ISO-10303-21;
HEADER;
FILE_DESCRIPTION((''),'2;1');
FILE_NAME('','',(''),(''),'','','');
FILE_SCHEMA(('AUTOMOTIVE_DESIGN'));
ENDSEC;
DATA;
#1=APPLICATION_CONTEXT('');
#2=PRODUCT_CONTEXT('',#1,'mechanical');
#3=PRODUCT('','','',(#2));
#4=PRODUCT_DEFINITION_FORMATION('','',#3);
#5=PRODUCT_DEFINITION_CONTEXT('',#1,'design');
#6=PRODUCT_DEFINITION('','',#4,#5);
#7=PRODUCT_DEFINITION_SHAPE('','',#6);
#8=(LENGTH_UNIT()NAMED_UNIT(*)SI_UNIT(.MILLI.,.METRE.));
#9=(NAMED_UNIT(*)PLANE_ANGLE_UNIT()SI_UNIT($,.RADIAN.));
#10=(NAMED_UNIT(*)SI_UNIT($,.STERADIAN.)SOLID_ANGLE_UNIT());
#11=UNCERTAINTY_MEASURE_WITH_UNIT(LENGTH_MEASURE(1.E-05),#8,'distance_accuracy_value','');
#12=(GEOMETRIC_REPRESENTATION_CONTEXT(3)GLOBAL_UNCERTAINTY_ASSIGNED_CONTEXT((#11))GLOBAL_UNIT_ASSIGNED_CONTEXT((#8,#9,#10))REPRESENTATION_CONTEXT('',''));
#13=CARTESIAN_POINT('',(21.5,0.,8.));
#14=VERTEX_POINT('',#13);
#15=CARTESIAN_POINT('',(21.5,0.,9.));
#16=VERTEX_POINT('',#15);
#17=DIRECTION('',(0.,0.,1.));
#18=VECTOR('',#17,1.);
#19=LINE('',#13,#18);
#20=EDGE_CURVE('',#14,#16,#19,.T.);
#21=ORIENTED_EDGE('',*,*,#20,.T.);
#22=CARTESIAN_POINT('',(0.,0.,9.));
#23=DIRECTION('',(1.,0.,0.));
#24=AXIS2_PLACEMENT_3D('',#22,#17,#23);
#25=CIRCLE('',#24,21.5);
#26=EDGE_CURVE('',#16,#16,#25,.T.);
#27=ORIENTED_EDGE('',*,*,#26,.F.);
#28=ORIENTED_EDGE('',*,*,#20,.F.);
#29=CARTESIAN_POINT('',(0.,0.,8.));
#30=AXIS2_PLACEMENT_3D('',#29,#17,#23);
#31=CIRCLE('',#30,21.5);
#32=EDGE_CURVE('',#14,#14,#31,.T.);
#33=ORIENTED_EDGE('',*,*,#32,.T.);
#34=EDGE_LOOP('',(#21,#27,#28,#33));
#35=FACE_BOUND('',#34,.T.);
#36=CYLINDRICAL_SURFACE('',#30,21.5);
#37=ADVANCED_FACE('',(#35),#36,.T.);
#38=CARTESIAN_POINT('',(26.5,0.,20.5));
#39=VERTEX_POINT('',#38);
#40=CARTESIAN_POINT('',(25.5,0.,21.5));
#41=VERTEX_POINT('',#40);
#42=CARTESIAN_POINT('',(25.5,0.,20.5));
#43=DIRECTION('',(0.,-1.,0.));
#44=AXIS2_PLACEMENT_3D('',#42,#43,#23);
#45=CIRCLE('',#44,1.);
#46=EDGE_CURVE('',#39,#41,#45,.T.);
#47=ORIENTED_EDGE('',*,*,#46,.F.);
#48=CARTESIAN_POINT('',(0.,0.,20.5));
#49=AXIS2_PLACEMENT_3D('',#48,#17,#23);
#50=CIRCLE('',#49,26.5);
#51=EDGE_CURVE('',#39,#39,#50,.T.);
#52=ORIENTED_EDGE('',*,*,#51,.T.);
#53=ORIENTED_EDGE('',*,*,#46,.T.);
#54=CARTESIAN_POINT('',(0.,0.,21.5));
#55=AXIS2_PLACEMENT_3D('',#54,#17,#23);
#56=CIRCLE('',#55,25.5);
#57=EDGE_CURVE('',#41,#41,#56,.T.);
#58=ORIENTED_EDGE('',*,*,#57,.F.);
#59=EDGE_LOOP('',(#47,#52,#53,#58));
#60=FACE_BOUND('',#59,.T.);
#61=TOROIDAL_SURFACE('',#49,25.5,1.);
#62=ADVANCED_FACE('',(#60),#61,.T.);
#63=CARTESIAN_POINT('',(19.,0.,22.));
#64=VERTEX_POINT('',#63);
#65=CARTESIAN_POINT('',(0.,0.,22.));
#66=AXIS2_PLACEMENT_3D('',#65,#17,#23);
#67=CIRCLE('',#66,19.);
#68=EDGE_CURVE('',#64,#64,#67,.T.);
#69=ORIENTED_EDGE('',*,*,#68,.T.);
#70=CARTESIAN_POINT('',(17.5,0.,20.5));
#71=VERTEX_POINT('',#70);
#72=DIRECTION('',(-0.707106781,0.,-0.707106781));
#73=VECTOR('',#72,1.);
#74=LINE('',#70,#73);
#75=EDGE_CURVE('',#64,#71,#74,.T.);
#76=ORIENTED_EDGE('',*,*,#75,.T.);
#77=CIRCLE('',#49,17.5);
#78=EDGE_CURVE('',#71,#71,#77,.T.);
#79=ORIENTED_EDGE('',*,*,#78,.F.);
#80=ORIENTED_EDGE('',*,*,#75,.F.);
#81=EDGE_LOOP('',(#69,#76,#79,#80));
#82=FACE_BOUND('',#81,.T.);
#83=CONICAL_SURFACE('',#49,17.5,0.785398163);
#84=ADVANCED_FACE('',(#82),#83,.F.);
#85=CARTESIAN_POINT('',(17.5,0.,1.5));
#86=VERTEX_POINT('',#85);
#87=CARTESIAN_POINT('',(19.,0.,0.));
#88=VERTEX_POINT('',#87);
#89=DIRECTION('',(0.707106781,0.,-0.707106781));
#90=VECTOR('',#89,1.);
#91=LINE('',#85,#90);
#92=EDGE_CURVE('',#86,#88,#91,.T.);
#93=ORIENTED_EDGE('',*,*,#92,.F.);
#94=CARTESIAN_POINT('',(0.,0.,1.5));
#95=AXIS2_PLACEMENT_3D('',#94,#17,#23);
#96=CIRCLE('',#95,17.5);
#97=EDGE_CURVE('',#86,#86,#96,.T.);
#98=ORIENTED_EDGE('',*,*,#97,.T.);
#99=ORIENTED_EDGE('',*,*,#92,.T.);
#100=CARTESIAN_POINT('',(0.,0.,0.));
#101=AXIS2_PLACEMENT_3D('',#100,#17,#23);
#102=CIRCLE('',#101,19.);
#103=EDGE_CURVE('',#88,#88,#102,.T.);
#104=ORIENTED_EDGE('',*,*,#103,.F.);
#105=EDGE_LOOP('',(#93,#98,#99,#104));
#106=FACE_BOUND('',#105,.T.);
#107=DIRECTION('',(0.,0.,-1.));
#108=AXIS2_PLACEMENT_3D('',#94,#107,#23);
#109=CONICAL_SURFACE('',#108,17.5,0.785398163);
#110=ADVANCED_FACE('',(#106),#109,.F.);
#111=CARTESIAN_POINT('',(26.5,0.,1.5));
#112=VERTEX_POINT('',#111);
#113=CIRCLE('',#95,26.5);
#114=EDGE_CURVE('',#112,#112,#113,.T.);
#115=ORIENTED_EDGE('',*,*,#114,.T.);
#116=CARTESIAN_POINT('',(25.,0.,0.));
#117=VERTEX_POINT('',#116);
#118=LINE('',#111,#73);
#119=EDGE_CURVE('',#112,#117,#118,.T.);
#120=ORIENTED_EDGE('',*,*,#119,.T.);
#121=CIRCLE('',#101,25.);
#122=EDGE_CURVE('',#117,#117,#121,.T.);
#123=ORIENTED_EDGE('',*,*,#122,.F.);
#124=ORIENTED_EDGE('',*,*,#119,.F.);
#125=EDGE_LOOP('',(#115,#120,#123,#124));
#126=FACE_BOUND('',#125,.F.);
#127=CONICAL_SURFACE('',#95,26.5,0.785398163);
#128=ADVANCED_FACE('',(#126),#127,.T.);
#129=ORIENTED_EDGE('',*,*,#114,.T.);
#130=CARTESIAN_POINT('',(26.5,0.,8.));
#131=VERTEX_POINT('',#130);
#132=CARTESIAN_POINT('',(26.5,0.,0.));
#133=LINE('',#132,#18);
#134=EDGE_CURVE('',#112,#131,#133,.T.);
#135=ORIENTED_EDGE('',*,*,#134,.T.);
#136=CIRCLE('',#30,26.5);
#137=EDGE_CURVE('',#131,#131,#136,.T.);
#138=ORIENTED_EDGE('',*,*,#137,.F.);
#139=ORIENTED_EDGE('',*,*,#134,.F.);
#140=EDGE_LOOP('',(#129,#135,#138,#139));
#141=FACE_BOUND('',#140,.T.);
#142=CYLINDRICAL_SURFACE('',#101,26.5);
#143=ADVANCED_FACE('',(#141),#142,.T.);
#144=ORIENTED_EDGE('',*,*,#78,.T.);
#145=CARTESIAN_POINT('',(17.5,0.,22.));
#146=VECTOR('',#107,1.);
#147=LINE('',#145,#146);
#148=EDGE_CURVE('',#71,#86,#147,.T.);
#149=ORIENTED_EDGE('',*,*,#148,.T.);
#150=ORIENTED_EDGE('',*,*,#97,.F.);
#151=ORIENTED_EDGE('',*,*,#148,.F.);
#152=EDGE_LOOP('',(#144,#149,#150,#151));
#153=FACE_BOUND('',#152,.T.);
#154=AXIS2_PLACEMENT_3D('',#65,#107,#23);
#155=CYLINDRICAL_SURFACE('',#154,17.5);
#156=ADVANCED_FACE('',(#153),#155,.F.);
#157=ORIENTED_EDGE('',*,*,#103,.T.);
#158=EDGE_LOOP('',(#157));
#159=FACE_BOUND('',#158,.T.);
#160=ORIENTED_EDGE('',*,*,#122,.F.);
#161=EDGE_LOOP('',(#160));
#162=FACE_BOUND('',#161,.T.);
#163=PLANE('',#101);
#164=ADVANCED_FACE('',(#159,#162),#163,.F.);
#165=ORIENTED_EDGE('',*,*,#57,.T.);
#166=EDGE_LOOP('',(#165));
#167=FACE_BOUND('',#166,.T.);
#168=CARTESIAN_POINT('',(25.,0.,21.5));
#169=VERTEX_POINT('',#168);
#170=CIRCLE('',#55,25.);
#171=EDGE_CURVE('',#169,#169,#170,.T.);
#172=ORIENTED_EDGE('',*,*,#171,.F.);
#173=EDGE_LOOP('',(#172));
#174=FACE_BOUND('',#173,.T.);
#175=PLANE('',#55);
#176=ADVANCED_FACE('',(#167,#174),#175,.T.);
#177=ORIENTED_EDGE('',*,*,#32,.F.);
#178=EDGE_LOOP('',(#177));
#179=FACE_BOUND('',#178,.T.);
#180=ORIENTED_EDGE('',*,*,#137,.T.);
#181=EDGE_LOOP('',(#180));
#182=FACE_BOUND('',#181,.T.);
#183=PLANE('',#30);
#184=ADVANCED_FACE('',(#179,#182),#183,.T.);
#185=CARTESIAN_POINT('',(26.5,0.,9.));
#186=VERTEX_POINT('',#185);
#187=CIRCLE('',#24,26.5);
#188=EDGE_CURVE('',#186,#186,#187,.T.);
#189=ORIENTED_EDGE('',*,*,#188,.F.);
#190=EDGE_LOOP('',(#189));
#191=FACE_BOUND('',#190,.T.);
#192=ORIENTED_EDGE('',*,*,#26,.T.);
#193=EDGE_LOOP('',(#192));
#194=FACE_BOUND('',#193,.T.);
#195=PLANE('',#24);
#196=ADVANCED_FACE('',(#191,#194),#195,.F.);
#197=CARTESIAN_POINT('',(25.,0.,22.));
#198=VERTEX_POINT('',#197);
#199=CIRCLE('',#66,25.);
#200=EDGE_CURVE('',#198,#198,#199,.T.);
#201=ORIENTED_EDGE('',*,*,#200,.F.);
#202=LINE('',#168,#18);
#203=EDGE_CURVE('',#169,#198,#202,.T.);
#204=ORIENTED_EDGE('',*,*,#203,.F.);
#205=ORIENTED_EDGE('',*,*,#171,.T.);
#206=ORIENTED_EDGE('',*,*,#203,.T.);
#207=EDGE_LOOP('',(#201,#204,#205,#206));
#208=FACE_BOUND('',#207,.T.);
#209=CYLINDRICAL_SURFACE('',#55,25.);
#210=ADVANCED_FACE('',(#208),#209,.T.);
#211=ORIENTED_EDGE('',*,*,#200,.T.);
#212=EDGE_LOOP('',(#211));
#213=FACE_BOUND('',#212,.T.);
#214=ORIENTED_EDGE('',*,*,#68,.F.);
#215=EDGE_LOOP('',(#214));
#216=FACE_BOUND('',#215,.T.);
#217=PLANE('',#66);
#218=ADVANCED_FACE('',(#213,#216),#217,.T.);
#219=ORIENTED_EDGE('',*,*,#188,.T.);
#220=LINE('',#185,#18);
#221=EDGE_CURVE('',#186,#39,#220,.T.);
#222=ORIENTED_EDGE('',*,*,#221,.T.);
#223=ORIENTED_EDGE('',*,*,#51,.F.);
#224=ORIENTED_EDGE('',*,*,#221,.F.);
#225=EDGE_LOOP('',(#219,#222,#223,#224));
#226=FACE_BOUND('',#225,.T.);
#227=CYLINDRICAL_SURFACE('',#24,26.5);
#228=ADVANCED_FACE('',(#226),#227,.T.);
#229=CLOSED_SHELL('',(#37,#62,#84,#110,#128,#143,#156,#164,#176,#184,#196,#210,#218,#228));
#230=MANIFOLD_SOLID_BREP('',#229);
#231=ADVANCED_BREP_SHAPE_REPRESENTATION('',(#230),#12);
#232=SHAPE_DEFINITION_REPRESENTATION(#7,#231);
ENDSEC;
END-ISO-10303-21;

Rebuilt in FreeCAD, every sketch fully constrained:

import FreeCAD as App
import Part
import Sketcher

V = App.Vector


def edges_at(feature, points):
    """Names of the edges that pass closest to the given points."""
    edges = feature.Shape.Edges
    near = lambda p: min(range(len(edges)), key=lambda i: edges[i].distToShape(Part.Vertex(*p))[0])
    return sorted({f"Edge{near(p) + 1}" for p in points})


def add_polygon(sketch, points):
    """Adds a closed chain of lines whose ends are joined by coincident constraints."""
    first, n = sketch.GeometryCount, len(points)
    for a, b in zip(points, points[1:] + points[:1]):
        sketch.addGeometry(Part.LineSegment(App.Vector(*a, 0), App.Vector(*b, 0)), False)
    for i in range(n):
        sketch.addConstraint(Sketcher.Constraint("Coincident", first + i, 2, first + (i + 1) % n, 1))

doc = App.newDocument("Part")
body = doc.addObject("PartDesign::Body", "Body")

sketch1 = body.newObject("Sketcher::SketchObject", "Sketch")
sketch1.AttachmentSupport = (doc.getObject("XZ_Plane"), [""])
sketch1.MapMode = "FlatFace"
add_polygon(sketch1, [(17.5, 22), (17.5, 0), (26.5, 0), (26.5, 8), (21.5, 8), (21.5, 9), (26.5, 9), (26.5, 21.5), (25, 21.5), (25, 22)])
sketch1.addConstraint(Sketcher.Constraint("Vertical", 0))
sketch1.addConstraint(Sketcher.Constraint("Horizontal", 1))
sketch1.addConstraint(Sketcher.Constraint("Vertical", 2))
sketch1.addConstraint(Sketcher.Constraint("Horizontal", 3))
sketch1.addConstraint(Sketcher.Constraint("Vertical", 4))
sketch1.addConstraint(Sketcher.Constraint("Horizontal", 5))
sketch1.addConstraint(Sketcher.Constraint("Vertical", 6))
sketch1.addConstraint(Sketcher.Constraint("Horizontal", 7))
sketch1.addConstraint(Sketcher.Constraint("Vertical", 8))
sketch1.addConstraint(Sketcher.Constraint("Horizontal", 9))
sketch1.addConstraint(Sketcher.Constraint("PointOnObject", 0, 2, -1))
sketch1.addConstraint(Sketcher.Constraint("Vertical", 2, 2, 5, 2))
sketch1.addConstraint(Sketcher.Constraint("DistanceX", 1, 1, 1, 2, 9.0))
sketch1.addConstraint(Sketcher.Constraint("DistanceX", 3, 2, 3, 1, 5.0))
sketch1.addConstraint(Sketcher.Constraint("DistanceY", 0, 2, 0, 1, 22.0))
sketch1.addConstraint(Sketcher.Constraint("DistanceY", 2, 1, 2, 2, 8.0))
sketch1.addConstraint(Sketcher.Constraint("DistanceY", 4, 1, 4, 2, 1.0))
sketch1.addConstraint(Sketcher.Constraint("DistanceX", 7, 2, 7, 1, 1.5))
sketch1.addConstraint(Sketcher.Constraint("DistanceY", 6, 1, 6, 2, 12.5))
sketch1.addConstraint(Sketcher.Constraint("DistanceX", -1, 1, 7, 2, 25.0))
revolution = body.newObject("PartDesign::Revolution", "Revolution")
revolution.Profile = sketch1
revolution.ReferenceAxis = (sketch1, ["V_Axis"])
revolution.Angle = 360
doc.recompute()

fillet = body.newObject("PartDesign::Fillet", "Fillet")
fillet.Base = (revolution, edges_at(revolution, [(-26.5, 0, 21.5)]))
fillet.Radius = 1
doc.recompute()

chamfer = body.newObject("PartDesign::Chamfer", "Chamfer")
chamfer.Base = (fillet, edges_at(fillet, [(-26.5, 0, 0), (-17.5, 0, 22), (-17.5, 0, 0)]))
chamfer.Size = 1.5

doc.recompute()
